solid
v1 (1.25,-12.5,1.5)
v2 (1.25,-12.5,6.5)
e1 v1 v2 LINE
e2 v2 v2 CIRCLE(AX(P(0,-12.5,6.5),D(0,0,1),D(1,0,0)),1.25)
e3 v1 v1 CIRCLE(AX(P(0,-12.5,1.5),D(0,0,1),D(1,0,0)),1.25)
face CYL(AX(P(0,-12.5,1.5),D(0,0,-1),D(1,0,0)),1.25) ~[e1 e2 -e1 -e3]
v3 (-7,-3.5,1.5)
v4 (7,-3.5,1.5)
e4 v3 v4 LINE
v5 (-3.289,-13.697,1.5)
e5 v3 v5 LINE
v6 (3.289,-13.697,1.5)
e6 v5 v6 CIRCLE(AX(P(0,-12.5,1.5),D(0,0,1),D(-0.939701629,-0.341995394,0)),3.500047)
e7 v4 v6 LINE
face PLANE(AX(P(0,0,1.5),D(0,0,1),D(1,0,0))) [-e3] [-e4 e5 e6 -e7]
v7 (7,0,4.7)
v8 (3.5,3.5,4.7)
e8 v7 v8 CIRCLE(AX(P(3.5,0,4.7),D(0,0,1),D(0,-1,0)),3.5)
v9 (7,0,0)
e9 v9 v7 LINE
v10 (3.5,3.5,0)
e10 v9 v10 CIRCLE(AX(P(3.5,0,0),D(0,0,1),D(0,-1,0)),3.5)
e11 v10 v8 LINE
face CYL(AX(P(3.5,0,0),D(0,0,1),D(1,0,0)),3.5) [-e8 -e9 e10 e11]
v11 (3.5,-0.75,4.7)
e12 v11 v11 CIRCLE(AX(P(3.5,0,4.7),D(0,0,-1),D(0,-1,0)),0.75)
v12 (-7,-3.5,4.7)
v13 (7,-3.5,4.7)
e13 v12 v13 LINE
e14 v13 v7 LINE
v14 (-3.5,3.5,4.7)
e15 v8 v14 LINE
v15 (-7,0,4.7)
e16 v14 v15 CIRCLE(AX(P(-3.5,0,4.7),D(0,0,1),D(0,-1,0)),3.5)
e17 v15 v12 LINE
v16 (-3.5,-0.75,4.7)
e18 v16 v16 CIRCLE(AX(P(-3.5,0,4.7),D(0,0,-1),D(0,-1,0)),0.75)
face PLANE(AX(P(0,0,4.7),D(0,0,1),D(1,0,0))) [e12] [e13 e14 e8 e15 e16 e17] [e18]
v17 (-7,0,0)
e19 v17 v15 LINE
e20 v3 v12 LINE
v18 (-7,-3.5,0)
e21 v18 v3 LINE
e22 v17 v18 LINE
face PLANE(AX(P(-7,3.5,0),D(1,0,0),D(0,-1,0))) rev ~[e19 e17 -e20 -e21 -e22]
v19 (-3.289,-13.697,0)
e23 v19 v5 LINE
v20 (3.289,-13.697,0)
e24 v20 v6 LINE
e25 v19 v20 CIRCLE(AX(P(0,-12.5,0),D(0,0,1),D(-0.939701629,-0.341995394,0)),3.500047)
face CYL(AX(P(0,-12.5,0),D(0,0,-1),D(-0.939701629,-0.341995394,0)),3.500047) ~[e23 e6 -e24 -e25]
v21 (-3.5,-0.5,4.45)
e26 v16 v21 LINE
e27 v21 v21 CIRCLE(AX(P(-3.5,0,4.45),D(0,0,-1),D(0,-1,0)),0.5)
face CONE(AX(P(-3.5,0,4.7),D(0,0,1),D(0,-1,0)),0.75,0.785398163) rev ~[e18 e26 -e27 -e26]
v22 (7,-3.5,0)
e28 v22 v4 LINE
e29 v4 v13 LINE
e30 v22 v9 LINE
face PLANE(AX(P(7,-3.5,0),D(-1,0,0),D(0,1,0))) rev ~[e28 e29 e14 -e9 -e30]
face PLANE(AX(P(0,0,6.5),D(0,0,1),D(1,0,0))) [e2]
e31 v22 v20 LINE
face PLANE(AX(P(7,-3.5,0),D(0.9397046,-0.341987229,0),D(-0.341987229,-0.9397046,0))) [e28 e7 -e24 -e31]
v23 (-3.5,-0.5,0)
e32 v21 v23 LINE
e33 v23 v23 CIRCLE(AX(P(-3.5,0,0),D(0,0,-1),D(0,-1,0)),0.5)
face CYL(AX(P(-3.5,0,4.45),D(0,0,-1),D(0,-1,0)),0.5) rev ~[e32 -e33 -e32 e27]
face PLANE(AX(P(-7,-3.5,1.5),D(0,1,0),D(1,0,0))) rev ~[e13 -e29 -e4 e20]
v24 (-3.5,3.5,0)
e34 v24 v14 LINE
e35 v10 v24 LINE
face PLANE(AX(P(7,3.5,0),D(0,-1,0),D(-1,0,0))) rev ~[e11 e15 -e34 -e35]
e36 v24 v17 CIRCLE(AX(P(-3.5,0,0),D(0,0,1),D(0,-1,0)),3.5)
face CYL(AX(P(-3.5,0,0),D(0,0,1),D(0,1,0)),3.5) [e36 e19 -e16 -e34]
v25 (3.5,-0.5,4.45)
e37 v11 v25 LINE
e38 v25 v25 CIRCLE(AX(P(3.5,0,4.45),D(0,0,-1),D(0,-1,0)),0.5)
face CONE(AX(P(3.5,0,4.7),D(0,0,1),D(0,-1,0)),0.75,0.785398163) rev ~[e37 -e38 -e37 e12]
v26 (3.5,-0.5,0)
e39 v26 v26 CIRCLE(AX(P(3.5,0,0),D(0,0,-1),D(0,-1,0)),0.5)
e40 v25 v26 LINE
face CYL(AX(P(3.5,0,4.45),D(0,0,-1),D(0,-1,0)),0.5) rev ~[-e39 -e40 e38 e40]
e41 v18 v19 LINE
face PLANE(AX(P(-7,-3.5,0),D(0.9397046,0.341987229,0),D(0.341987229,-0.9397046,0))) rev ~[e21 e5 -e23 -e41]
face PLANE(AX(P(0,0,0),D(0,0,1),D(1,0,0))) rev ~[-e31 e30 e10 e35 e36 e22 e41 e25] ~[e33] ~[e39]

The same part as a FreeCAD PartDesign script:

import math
import FreeCAD as App
import Part
import Sketcher
Q = App.Units.Quantity


def edges_at(feature, points):
    """Names of the edges that pass closest to the given points."""
    edges = feature.Shape.Edges
    near = lambda p: min(range(len(edges)), key=lambda i: edges[i].distToShape(Part.Vertex(*p))[0])
    return sorted({f"Edge{near(p) + 1}" for p in points})


def add_polygon(sketch, points):
    """Adds a closed chain of lines whose ends are joined by coincident constraints."""
    first, n = sketch.GeometryCount, len(points)
    for a, b in zip(points, points[1:] + points[:1]):
        sketch.addGeometry(Part.LineSegment(App.Vector(*a, 0), App.Vector(*b, 0)), False)
    for i in range(n):
        sketch.addConstraint(Sketcher.Constraint("Coincident", first + i, 2, first + (i + 1) % n, 1))

doc = App.newDocument("Part")
body = doc.addObject("PartDesign::Body", "Body")

# Sketch on XY plane
sketch1 = body.newObject("Sketcher::SketchObject", "Sketch")
sketch1.AttachmentSupport = (doc.getObject("XY_Plane"), [""])
sketch1.MapMode = "FlatFace"
sketch1.addGeometry([
    Part.LineSegment(App.Vector(3.3, -13.7, 0), App.Vector(7, -3.5, 0)),  # 0
    Part.LineSegment(App.Vector(7, -3.5, 0), App.Vector(7, 3.5, 0)),  # 1
    Part.LineSegment(App.Vector(7, 3.5, 0), App.Vector(-7, 3.5, 0)),  # 2
    Part.LineSegment(App.Vector(-7, 3.5, 0), App.Vector(-7, -3.5, 0)),  # 3
    Part.LineSegment(App.Vector(-7, -3.5, 0), App.Vector(-3.3, -13.7, 0)),  # 4
    Part.ArcOfCircle(Part.Circle(App.Vector(0, -12.5, 0), App.Vector(0, 0, 1), 3.5), math.radians(-160), math.radians(-20)),  # 5
], False)
sketch1.addConstraint([
    Sketcher.Constraint("Coincident", 0, 2, 1, 1),
    Sketcher.Constraint("Coincident", 1, 2, 2, 1),
    Sketcher.Constraint("Coincident", 2, 2, 3, 1),
    Sketcher.Constraint("Coincident", 3, 2, 4, 1),
    Sketcher.Constraint("Tangent", 4, 2, 5, 1),
    Sketcher.Constraint("Tangent", 5, 2, 0, 1),
    Sketcher.Constraint("Vertical", 1),
    Sketcher.Constraint("Horizontal", 2),
    Sketcher.Constraint("Vertical", 3),
    Sketcher.Constraint("Symmetric", 0, 2, 2, 2, -1, 1),
    Sketcher.Constraint("Symmetric", 4, 2, 5, 2, -2),
    Sketcher.Constraint("Radius", 5, Q("3.5 mm")),
    Sketcher.Constraint("DistanceX", 2, 2, 2, 1, Q("14 mm")),
    Sketcher.Constraint("DistanceY", 1, 1, 1, 2, Q("7 mm")),
    Sketcher.Constraint("DistanceY", 5, 3, 0, 2, Q("9 mm")),
])
pad1 = body.newObject("PartDesign::Pad", "Pad")
pad1.Profile = sketch1
pad1.Length = 1.5

# Sketch on XY plane
sketch2 = body.newObject("Sketcher::SketchObject", "Sketch001")
sketch2.AttachmentSupport = (doc.getObject("XY_Plane"), [""])
sketch2.MapMode = "FlatFace"
sketch2.AttachmentOffset = App.Placement(App.Vector(0, 0, 1.5), App.Rotation())
add_polygon(sketch2, [(7, -4), (7, 4), (-7, 4), (-7, -4)])  # lines 0-3
sketch2.addConstraint([
    Sketcher.Constraint("Vertical", 0),
    Sketcher.Constraint("Horizontal", 1),
    Sketcher.Constraint("Vertical", 2),
    Sketcher.Constraint("Horizontal", 3),
    Sketcher.Constraint("Symmetric", 0, 2, 2, 2, -1, 1),
    Sketcher.Constraint("DistanceX", 1, 2, 1, 1, Q("14 mm")),
    Sketcher.Constraint("DistanceY", 0, 1, 0, 2, Q("7 mm")),
])
pad2 = body.newObject("PartDesign::Pad", "Pad001")
pad2.Profile = sketch2
pad2.Length = 3.2

# Sketch on XY plane
sketch3 = body.newObject("Sketcher::SketchObject", "Sketch002")
sketch3.AttachmentSupport = (doc.getObject("XY_Plane"), [""])
sketch3.MapMode = "FlatFace"
sketch3.AttachmentOffset = App.Placement(App.Vector(0, 0, 1.5), App.Rotation())
sketch3.addGeometry(Part.Circle(App.Vector(0, -12.5, 0), App.Vector(0, 0, 1), 1.2), False)
sketch3.addConstraint([
    Sketcher.Constraint("PointOnObject", 0, 3, -2),
    Sketcher.Constraint("Diameter", 0, Q("2.5 mm")),
    Sketcher.Constraint("DistanceY", 0, 3, -1, 1, Q("12.5 mm")),
])
pad3 = body.newObject("PartDesign::Pad", "Pad002")
pad3.Profile = sketch3
pad3.Length = 5
doc.recompute()

fillet = body.newObject("PartDesign::Fillet", "Fillet")
fillet.Base = (pad3, edges_at(pad3, [(7, 3.5, 2.35), (-7, 3.5, 2.35)]))
fillet.Radius = 3.5

# Sketch on XY plane
sketch4 = body.newObject("Sketcher::SketchObject", "Sketch003")
sketch4.AttachmentSupport = (doc.getObject("XY_Plane"), [""])
sketch4.MapMode = "FlatFace"
sketch4.AttachmentOffset = App.Placement(App.Vector(0, 0, 4.7), App.Rotation())
sketch4.addGeometry([
    Part.Circle(App.Vector(-3.5, 0, 0), App.Vector(0, 0, 1), 0.5),
    Part.Circle(App.Vector(3.5, 0, 0), App.Vector(0, 0, 1), 0.5),
], False)
sketch4.addConstraint([
    Sketcher.Constraint("Equal", 0, 1),
    Sketcher.Constraint("Symmetric", 0, 3, 1, 3, -1, 1),
    Sketcher.Constraint("PointOnObject", 0, 3, -1),
    Sketcher.Constraint("Diameter", 0, Q("1 mm")),
    Sketcher.Constraint("DistanceX", 0, 3, 1, 3, Q("7 mm")),
])
doc.recompute()
hole = body.newObject("PartDesign::Hole", "Hole")
hole.Profile = sketch4
hole.ThreadType = "None"
hole.Diameter = 1
hole.DepthType = "ThroughAll"
hole.HoleCutType = "Countersink"
hole.HoleCutDiameter = 1.5
hole.HoleCutCountersinkAngle = 90

doc.recompute()
